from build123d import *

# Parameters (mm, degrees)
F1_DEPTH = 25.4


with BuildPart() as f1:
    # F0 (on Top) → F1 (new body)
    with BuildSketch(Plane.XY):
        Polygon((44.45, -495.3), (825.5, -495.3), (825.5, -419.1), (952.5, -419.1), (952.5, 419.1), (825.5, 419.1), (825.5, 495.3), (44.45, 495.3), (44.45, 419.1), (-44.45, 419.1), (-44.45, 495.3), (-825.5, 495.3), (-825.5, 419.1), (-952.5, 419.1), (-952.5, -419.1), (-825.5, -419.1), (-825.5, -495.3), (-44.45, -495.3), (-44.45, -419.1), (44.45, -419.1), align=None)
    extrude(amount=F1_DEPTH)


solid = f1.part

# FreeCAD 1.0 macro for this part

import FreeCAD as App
import Part
import Sketcher
Q = App.Units.Quantity


def add_polygon(sketch, points):
    """Adds a closed chain of lines whose ends are joined by coincident constraints."""
    first, n = sketch.GeometryCount, len(points)
    for a, b in zip(points, points[1:] + points[:1]):
        sketch.addGeometry(Part.LineSegment(App.Vector(*a, 0), App.Vector(*b, 0)), False)
    for i in range(n):
        sketch.addConstraint(Sketcher.Constraint("Coincident", first + i, 2, first + (i + 1) % n, 1))

doc = App.newDocument("Part")
params = doc.addObject("Spreadsheet::Sheet", "Params")
for row, (alias, value) in enumerate([
    ("sketch1_width", "5 in"),
    ("sketch1_height", "3 in"),
    ("sketch1_height2", "33 in"),
    ("sketch1_width2", "3.5 in"),
    ("pad1_length", "1 in"),
], start=1):
    params.set(f"A{row}", alias)
    params.set(f"B{row}", "=" + value)
    params.setAlias(f"B{row}", alias)

body = doc.addObject("PartDesign::Body", "Body")

# Sketch on XY plane
sketch1 = body.newObject("Sketcher::SketchObject", "Sketch")
sketch1.AttachmentSupport = (doc.getObject("XY_Plane"), [""])
sketch1.MapMode = "FlatFace"
add_polygon(sketch1, [(44, -495), (826, -495), (826, -419), (952, -419), (952, 419), (826, 419), (826, 495), (44, 495), (44, 419), (-44, 419), (-44, 495), (-826, 495), (-826, 419), (-952, 419), (-952, -419), (-826, -419), (-826, -495), (-44, -495), (-44, -419), (44, -419)])  # lines 0-19
sketch1.addConstraint([
    Sketcher.Constraint("Horizontal", 0),
    Sketcher.Constraint("Vertical", 1),
    Sketcher.Constraint("Horizontal", 2),
    Sketcher.Constraint("Vertical", 3),
    Sketcher.Constraint("Horizontal", 4),
    Sketcher.Constraint("Vertical", 5),
    Sketcher.Constraint("Horizontal", 6),
    Sketcher.Constraint("Vertical", 7),
    Sketcher.Constraint("Horizontal", 8),
    Sketcher.Constraint("Vertical", 9),
    Sketcher.Constraint("Horizontal", 10),
    Sketcher.Constraint("Vertical", 11),
    Sketcher.Constraint("Horizontal", 12),
    Sketcher.Constraint("Vertical", 13),
    Sketcher.Constraint("Horizontal", 14),
    Sketcher.Constraint("Vertical", 15),
    Sketcher.Constraint("Horizontal", 16),
    Sketcher.Constraint("Vertical", 17),
    Sketcher.Constraint("Horizontal", 18),
    Sketcher.Constraint("Vertical", 19),
    Sketcher.Constraint("Symmetric", 0, 2, 10, 2, -1, 1),
    Sketcher.Constraint("Symmetric", 2, 2, 12, 2, -1, 1),
    Sketcher.Constraint("Symmetric", 4, 2, 14, 2, -1, 1),
    Sketcher.Constraint("Symmetric", 6, 2, 16, 2, -1, 1),
    Sketcher.Constraint("Symmetric", 8, 2, 18, 2, -1, 1),
    Sketcher.Constraint("Symmetric", 6, 2, 9, 2, -2),
    Sketcher.Constraint("Symmetric", 4, 2, 11, 2, -2),
    Sketcher.Constraint("Horizontal", 4, 2, 7, 2),
    Sketcher.Constraint("DistanceX", 2, 1, 2, 2, Q("5 in")),
    Sketcher.Constraint("DistanceY", 1, 1, 1, 2, Q("3 in")),
    Sketcher.Constraint("DistanceY", 3, 1, 3, 2, Q("33 in")),
    Sketcher.Constraint("DistanceX", 8, 2, 8, 1, Q("3.5 in")),
    Sketcher.Constraint("DistanceX", 10, 2, 5, 2, Q("65 in")),
])
sketch1.setExpression("Constraints[48]", "Params.sketch1_width")
sketch1.setExpression("Constraints[49]", "Params.sketch1_height")
sketch1.setExpression("Constraints[50]", "Params.sketch1_height2")
sketch1.setExpression("Constraints[51]", "Params.sketch1_width2")
pad1 = body.newObject("PartDesign::Pad", "Pad")
pad1.Profile = sketch1
pad1.setExpression("Length", "Params.pad1_length")

doc.recompute()
